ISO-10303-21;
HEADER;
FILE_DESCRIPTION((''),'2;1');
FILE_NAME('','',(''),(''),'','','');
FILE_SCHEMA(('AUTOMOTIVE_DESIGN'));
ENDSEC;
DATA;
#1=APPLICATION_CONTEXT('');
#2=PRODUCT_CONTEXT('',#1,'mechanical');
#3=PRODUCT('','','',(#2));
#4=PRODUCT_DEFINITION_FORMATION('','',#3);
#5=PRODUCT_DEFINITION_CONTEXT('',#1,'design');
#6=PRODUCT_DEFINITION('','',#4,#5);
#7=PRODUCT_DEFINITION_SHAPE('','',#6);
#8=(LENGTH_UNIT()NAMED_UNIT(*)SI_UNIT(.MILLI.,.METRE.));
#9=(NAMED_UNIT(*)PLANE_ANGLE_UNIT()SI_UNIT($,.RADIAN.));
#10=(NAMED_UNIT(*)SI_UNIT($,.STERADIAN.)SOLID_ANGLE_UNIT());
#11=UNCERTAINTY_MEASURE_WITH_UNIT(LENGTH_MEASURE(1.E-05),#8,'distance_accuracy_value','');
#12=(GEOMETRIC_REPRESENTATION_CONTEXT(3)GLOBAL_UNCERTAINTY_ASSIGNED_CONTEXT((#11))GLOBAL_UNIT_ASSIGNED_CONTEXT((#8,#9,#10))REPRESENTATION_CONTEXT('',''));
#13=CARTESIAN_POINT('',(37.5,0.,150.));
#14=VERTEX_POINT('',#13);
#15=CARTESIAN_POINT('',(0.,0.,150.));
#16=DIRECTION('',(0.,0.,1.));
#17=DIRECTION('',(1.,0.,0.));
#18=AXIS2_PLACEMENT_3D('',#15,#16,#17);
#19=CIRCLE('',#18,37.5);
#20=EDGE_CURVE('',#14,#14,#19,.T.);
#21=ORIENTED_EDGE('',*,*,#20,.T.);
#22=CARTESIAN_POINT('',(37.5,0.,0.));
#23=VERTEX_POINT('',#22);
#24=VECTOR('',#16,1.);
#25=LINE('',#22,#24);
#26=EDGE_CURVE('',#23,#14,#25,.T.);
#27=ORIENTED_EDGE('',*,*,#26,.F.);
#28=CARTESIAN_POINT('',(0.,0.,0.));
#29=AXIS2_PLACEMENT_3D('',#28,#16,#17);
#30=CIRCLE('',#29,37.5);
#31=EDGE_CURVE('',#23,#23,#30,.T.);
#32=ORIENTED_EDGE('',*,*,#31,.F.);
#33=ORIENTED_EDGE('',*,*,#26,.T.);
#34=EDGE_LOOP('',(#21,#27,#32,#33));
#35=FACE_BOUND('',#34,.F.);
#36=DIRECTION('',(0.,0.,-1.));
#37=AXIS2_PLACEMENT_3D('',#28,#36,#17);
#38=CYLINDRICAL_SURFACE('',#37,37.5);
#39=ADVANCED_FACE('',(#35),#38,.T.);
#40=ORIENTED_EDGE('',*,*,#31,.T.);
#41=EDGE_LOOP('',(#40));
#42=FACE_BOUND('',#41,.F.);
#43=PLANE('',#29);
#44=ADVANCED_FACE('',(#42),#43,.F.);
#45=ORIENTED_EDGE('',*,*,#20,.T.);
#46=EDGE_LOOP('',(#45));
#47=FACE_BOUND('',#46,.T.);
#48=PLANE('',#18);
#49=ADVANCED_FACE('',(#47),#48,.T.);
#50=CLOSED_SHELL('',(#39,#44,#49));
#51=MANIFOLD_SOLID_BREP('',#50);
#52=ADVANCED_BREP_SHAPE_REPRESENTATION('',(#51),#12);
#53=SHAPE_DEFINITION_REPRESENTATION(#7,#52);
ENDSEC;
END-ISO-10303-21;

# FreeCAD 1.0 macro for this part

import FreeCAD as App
import Part
import Sketcher
Q = App.Units.Quantity

doc = App.newDocument("Part")
body = doc.addObject("PartDesign::Body", "Body")

# Sketch on XY plane
sketch1 = body.newObject("Sketcher::SketchObject", "Sketch")
sketch1.AttachmentSupport = (doc.getObject("XY_Plane"), [""])
sketch1.MapMode = "FlatFace"
sketch1.addGeometry(Part.Circle(App.Vector(0, 0, 0), App.Vector(0, 0, 1), 38), False)
sketch1.addConstraint([
    Sketcher.Constraint("Coincident", 0, 3, -1, 1),
    Sketcher.Constraint("Diameter", 0, Q("75 mm")),
])
pad1 = body.newObject("PartDesign::Pad", "Pad")
pad1.Profile = sketch1
pad1.Length = 150

doc.recompute()
